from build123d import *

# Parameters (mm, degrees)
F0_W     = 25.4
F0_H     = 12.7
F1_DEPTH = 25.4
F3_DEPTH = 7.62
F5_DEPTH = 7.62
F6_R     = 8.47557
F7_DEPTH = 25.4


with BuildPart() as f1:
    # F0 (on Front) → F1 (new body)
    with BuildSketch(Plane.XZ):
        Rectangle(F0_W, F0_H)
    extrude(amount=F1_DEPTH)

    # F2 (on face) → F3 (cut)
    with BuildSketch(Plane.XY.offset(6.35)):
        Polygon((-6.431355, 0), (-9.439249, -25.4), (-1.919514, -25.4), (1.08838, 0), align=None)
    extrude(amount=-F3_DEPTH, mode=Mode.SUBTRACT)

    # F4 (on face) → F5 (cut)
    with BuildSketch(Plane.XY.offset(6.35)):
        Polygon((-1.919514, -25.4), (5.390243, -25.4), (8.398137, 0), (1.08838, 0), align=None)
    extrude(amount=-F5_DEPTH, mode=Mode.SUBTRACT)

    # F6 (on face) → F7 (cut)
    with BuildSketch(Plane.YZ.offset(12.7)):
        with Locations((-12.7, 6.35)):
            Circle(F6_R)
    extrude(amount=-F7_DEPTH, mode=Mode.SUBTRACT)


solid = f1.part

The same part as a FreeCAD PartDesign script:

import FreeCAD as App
import Part
import Sketcher
Q = App.Units.Quantity

doc = App.newDocument("Part")
params = doc.addObject("Spreadsheet::Sheet", "Params")
for row, (alias, value) in enumerate([
    ("sketch1_width", "1 in"),
    ("sketch1_height", "0.5 in"),
    ("pad1_length", "1 in"),
    ("pocket1_length", "0.3 in"),
    ("pocket2_length", "0.3 in"),
    ("pocket3_length", "1 in"),
], start=1):
    params.set(f"A{row}", alias)
    params.set(f"B{row}", "=" + value)
    params.setAlias(f"B{row}", alias)

body = doc.addObject("PartDesign::Body", "Body")

# Sketch on XZ plane
sketch1 = body.newObject("Sketcher::SketchObject", "Sketch")
sketch1.AttachmentSupport = (doc.getObject("XZ_Plane"), [""])
sketch1.MapMode = "FlatFace"
sketch1.addGeometry(Part.LineSegment(App.Vector(-13, 6, 0), App.Vector(-13, -6, 0)), False)
sketch1.addGeometry(Part.LineSegment(App.Vector(-13, -6, 0), App.Vector(13, -6, 0)), False)
sketch1.addGeometry(Part.LineSegment(App.Vector(13, -6, 0), App.Vector(13, 6, 0)), False)
sketch1.addGeometry(Part.LineSegment(App.Vector(13, 6, 0), App.Vector(-13, 6, 0)), False)
sketch1.addConstraint(Sketcher.Constraint("Coincident", 0, 2, 1, 1))
sketch1.addConstraint(Sketcher.Constraint("Coincident", 1, 2, 2, 1))
sketch1.addConstraint(Sketcher.Constraint("Coincident", 2, 2, 3, 1))
sketch1.addConstraint(Sketcher.Constraint("Coincident", 3, 2, 0, 1))
sketch1.addConstraint(Sketcher.Constraint("Vertical", 0))
sketch1.addConstraint(Sketcher.Constraint("Horizontal", 1))
sketch1.addConstraint(Sketcher.Constraint("Vertical", 2))
sketch1.addConstraint(Sketcher.Constraint("Horizontal", 3))
sketch1.addConstraint(Sketcher.Constraint("Symmetric", 0, 2, 2, 2, -1, 1))
sketch1.addConstraint(Sketcher.Constraint("DistanceX", 1, 1, 1, 2, Q("1 in")))
sketch1.addConstraint(Sketcher.Constraint("DistanceY", 0, 2, 0, 1, Q("0.5 in")))
sketch1.setExpression("Constraints[9]", "Params.sketch1_width")
sketch1.setExpression("Constraints[10]", "Params.sketch1_height")
pad1 = body.newObject("PartDesign::Pad", "Pad")
pad1.Profile = sketch1
pad1.setExpression("Length", "Params.pad1_length")

# Sketch on XY plane
sketch2 = body.newObject("Sketcher::SketchObject", "Sketch001")
sketch2.AttachmentSupport = (doc.getObject("XY_Plane"), [""])
sketch2.MapMode = "FlatFace"
sketch2.AttachmentOffset = App.Placement(App.Vector(0, 0, 0.25 * 25.4), App.Rotation())
sketch2.addGeometry(Part.LineSegment(App.Vector(-6, 0, 0), App.Vector(-9, -25, 0)), False)
sketch2.addGeometry(Part.LineSegment(App.Vector(-9, -25, 0), App.Vector(-2, -25, 0)), False)
sketch2.addGeometry(Part.LineSegment(App.Vector(-2, -25, 0), App.Vector(1, 0, 0)), False)
sketch2.addGeometry(Part.LineSegment(App.Vector(1, 0, 0), App.Vector(-6, 0, 0)), False)
sketch2.addConstraint(Sketcher.Constraint("Coincident", 0, 2, 1, 1))
sketch2.addConstraint(Sketcher.Constraint("Coincident", 1, 2, 2, 1))
sketch2.addConstraint(Sketcher.Constraint("Coincident", 2, 2, 3, 1))
sketch2.addConstraint(Sketcher.Constraint("Coincident", 3, 2, 0, 1))
sketch2.addConstraint(Sketcher.Constraint("Horizontal", 1))
sketch2.addConstraint(Sketcher.Constraint("Horizontal", 3))
sketch2.addConstraint(Sketcher.Constraint("PointOnObject", 2, 2, -1))
sketch2.addConstraint(Sketcher.Constraint("Parallel", 0, 2))
sketch2.addConstraint(Sketcher.Constraint("DistanceY", 0, 2, -1, 1, Q("1 in")))
sketch2.addConstraint(Sketcher.Constraint("Distance", 0, 25.577479))
sketch2.addConstraint(Sketcher.Constraint("DistanceX", 1, 1, 1, 2, 7.519735))
sketch2.addConstraint(Sketcher.Constraint("DistanceX", 0, 2, -1, 1, 9.439249))
pocket1 = body.newObject("PartDesign::Pocket", "Pocket")
pocket1.Profile = sketch2
pocket1.setExpression("Length", "Params.pocket1_length")

# Sketch on XY plane
sketch3 = body.newObject("Sketcher::SketchObject", "Sketch002")
sketch3.AttachmentSupport = (doc.getObject("XY_Plane"), [""])
sketch3.MapMode = "FlatFace"
sketch3.AttachmentOffset = App.Placement(App.Vector(0, 0, 0.25 * 25.4), App.Rotation())
sketch3.addGeometry(Part.LineSegment(App.Vector(-2, -25, 0), App.Vector(5, -25, 0)), False)
sketch3.addGeometry(Part.LineSegment(App.Vector(5, -25, 0), App.Vector(8, 0, 0)), False)
sketch3.addGeometry(Part.LineSegment(App.Vector(8, 0, 0), App.Vector(1, 0, 0)), False)
sketch3.addGeometry(Part.LineSegment(App.Vector(1, 0, 0), App.Vector(-2, -25, 0)), False)
sketch3.addConstraint(Sketcher.Constraint("Coincident", 0, 2, 1, 1))
sketch3.addConstraint(Sketcher.Constraint("Coincident", 1, 2, 2, 1))
sketch3.addConstraint(Sketcher.Constraint("Coincident", 2, 2, 3, 1))
sketch3.addConstraint(Sketcher.Constraint("Coincident", 3, 2, 0, 1))
sketch3.addConstraint(Sketcher.Constraint("Horizontal", 0))
sketch3.addConstraint(Sketcher.Constraint("Horizontal", 2))
sketch3.addConstraint(Sketcher.Constraint("PointOnObject", 1, 2, -1))
sketch3.addConstraint(Sketcher.Constraint("Parallel", 1, 3))
sketch3.addConstraint(Sketcher.Constraint("DistanceY", 0, 2, -1, 1, Q("1 in")))
sketch3.addConstraint(Sketcher.Constraint("Distance", 1, 25.577479))
sketch3.addConstraint(Sketcher.Constraint("DistanceX", 0, 1, 0, 2, 7.309757))
sketch3.addConstraint(Sketcher.Constraint("DistanceX", -1, 1, 2, 2, 1.08838))
pocket2 = body.newObject("PartDesign::Pocket", "Pocket001")
pocket2.Profile = sketch3
pocket2.setExpression("Length", "Params.pocket2_length")

# Sketch on YZ plane
sketch4 = body.newObject("Sketcher::SketchObject", "Sketch003")
sketch4.AttachmentSupport = (doc.getObject("YZ_Plane"), [""])
sketch4.MapMode = "FlatFace"
sketch4.AttachmentOffset = App.Placement(App.Vector(0, 0, 0.5 * 25.4), App.Rotation())
sketch4.addGeometry(Part.Circle(App.Vector(-13, 6, 0), App.Vector(0, 0, 1), 8), False)
sketch4.addConstraint(Sketcher.Constraint("DistanceX", 0, 3, -1, 1, Q("0.5 in")))
sketch4.addConstraint(Sketcher.Constraint("DistanceY", -1, 1, 0, 3, Q("0.25 in")))
sketch4.addConstraint(Sketcher.Constraint("Diameter", 0, 16.95114))
pocket3 = body.newObject("PartDesign::Pocket", "Pocket002")
pocket3.Profile = sketch4
pocket3.setExpression("Length", "Params.pocket3_length")

doc.recompute()
